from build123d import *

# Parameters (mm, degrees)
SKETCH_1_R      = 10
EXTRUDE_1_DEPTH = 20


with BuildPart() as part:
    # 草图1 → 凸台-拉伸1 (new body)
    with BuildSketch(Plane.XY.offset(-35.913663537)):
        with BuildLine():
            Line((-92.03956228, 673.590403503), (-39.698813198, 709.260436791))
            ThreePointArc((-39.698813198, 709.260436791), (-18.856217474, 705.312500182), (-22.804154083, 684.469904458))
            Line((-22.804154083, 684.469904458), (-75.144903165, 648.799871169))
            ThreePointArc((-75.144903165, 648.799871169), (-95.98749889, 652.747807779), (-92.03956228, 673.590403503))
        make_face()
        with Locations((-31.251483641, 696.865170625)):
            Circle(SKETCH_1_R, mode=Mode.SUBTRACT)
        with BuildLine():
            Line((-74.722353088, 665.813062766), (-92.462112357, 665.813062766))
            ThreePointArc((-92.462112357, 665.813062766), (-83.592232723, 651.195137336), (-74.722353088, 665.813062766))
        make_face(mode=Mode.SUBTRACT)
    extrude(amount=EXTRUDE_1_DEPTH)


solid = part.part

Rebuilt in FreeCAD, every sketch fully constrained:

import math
import FreeCAD as App
import Part
import Sketcher
from FreeCAD import Vector

doc = App.newDocument("Part")
params = doc.addObject("Spreadsheet::Sheet", "Params")
for row, (alias, value) in enumerate([
    ("sketch1_diameter", "20 mm"),
    ("sketch1_radius", "15 mm"),
    ("pad1_length", "20 mm"),
], start=1):
    params.set(f"A{row}", alias)
    params.set(f"B{row}", "=" + value)
    params.setAlias(f"B{row}", alias)

body = doc.addObject("PartDesign::Body", "Body")

# Sketch on XY plane
sketch1 = body.newObject("Sketcher::SketchObject", "Sketch")
sketch1.AttachmentSupport = (doc.getObject("XY_Plane"), [""])
sketch1.MapMode = "FlatFace"
sketch1.AttachmentOffset = App.Placement(Vector(0, 0, -35.913664), App.Rotation())
sketch1.addGeometry([
    Part.LineSegment(Vector(-40, 709, 0), Vector(-92, 674, 0)),  # 0
    Part.ArcOfCircle(Part.Circle(Vector(-84, 661, 0), Vector(0, 0, 1), 15), math.radians(124), math.radians(304)),  # 1
    Part.LineSegment(Vector(-75, 649, 0), Vector(-23, 684, 0)),  # 2
    Part.ArcOfCircle(Part.Circle(Vector(-31, 697, 0), Vector(0, 0, 1), 15), math.radians(-56), math.radians(124)),  # 3
    Part.ArcOfCircle(Part.Circle(Vector(-84, 661, 0), Vector(0, 0, 1), 10), math.radians(152), math.radians(388)),  # 4
    Part.LineSegment(Vector(-92, 666, 0), Vector(-75, 666, 0)),  # 5
    Part.Circle(Vector(-31, 697, 0), Vector(0, 0, 1), 10),  # 6
], False)
sketch1.addConstraint([
    Sketcher.Constraint("Tangent", 0, 2, 1, 1),
    Sketcher.Constraint("Tangent", 1, 2, 2, 1),
    Sketcher.Constraint("Tangent", 2, 2, 3, 1),
    Sketcher.Constraint("Tangent", 3, 2, 0, 1),
    Sketcher.Constraint("Coincident", 4, 1, 5, 1),
    Sketcher.Constraint("Coincident", 5, 2, 4, 2),
    Sketcher.Constraint("Horizontal", 5),
    Sketcher.Constraint("Coincident", 4, 3, 1, 3),
    Sketcher.Constraint("Coincident", 6, 3, 3, 3),
    Sketcher.Constraint("Equal", 1, 3),
    Sketcher.Constraint("Equal", 4, 6),
    Sketcher.Constraint("Diameter", 6, 20.0),
    Sketcher.Constraint("Radius", 1, 15.0),
    Sketcher.Constraint("DistanceX", 5, 1, 5, 2, 17.739759),
    Sketcher.Constraint("DistanceY", 1, 2, 6, 3, 48.065299),
    Sketcher.Constraint("DistanceX", 4, 1, 3, 2, 52.763299),
    Sketcher.Constraint("DistanceY", -1, 1, 3, 3, 696.865171),
    Sketcher.Constraint("DistanceX", 1, 3, -1, 1, 83.592233),
])
sketch1.setExpression("Constraints[11]", "Params.sketch1_diameter")
sketch1.setExpression("Constraints[12]", "Params.sketch1_radius")
pad1 = body.newObject("PartDesign::Pad", "Pad")
pad1.Profile = sketch1
pad1.setExpression("Length", "Params.pad1_length")

doc.recompute()
